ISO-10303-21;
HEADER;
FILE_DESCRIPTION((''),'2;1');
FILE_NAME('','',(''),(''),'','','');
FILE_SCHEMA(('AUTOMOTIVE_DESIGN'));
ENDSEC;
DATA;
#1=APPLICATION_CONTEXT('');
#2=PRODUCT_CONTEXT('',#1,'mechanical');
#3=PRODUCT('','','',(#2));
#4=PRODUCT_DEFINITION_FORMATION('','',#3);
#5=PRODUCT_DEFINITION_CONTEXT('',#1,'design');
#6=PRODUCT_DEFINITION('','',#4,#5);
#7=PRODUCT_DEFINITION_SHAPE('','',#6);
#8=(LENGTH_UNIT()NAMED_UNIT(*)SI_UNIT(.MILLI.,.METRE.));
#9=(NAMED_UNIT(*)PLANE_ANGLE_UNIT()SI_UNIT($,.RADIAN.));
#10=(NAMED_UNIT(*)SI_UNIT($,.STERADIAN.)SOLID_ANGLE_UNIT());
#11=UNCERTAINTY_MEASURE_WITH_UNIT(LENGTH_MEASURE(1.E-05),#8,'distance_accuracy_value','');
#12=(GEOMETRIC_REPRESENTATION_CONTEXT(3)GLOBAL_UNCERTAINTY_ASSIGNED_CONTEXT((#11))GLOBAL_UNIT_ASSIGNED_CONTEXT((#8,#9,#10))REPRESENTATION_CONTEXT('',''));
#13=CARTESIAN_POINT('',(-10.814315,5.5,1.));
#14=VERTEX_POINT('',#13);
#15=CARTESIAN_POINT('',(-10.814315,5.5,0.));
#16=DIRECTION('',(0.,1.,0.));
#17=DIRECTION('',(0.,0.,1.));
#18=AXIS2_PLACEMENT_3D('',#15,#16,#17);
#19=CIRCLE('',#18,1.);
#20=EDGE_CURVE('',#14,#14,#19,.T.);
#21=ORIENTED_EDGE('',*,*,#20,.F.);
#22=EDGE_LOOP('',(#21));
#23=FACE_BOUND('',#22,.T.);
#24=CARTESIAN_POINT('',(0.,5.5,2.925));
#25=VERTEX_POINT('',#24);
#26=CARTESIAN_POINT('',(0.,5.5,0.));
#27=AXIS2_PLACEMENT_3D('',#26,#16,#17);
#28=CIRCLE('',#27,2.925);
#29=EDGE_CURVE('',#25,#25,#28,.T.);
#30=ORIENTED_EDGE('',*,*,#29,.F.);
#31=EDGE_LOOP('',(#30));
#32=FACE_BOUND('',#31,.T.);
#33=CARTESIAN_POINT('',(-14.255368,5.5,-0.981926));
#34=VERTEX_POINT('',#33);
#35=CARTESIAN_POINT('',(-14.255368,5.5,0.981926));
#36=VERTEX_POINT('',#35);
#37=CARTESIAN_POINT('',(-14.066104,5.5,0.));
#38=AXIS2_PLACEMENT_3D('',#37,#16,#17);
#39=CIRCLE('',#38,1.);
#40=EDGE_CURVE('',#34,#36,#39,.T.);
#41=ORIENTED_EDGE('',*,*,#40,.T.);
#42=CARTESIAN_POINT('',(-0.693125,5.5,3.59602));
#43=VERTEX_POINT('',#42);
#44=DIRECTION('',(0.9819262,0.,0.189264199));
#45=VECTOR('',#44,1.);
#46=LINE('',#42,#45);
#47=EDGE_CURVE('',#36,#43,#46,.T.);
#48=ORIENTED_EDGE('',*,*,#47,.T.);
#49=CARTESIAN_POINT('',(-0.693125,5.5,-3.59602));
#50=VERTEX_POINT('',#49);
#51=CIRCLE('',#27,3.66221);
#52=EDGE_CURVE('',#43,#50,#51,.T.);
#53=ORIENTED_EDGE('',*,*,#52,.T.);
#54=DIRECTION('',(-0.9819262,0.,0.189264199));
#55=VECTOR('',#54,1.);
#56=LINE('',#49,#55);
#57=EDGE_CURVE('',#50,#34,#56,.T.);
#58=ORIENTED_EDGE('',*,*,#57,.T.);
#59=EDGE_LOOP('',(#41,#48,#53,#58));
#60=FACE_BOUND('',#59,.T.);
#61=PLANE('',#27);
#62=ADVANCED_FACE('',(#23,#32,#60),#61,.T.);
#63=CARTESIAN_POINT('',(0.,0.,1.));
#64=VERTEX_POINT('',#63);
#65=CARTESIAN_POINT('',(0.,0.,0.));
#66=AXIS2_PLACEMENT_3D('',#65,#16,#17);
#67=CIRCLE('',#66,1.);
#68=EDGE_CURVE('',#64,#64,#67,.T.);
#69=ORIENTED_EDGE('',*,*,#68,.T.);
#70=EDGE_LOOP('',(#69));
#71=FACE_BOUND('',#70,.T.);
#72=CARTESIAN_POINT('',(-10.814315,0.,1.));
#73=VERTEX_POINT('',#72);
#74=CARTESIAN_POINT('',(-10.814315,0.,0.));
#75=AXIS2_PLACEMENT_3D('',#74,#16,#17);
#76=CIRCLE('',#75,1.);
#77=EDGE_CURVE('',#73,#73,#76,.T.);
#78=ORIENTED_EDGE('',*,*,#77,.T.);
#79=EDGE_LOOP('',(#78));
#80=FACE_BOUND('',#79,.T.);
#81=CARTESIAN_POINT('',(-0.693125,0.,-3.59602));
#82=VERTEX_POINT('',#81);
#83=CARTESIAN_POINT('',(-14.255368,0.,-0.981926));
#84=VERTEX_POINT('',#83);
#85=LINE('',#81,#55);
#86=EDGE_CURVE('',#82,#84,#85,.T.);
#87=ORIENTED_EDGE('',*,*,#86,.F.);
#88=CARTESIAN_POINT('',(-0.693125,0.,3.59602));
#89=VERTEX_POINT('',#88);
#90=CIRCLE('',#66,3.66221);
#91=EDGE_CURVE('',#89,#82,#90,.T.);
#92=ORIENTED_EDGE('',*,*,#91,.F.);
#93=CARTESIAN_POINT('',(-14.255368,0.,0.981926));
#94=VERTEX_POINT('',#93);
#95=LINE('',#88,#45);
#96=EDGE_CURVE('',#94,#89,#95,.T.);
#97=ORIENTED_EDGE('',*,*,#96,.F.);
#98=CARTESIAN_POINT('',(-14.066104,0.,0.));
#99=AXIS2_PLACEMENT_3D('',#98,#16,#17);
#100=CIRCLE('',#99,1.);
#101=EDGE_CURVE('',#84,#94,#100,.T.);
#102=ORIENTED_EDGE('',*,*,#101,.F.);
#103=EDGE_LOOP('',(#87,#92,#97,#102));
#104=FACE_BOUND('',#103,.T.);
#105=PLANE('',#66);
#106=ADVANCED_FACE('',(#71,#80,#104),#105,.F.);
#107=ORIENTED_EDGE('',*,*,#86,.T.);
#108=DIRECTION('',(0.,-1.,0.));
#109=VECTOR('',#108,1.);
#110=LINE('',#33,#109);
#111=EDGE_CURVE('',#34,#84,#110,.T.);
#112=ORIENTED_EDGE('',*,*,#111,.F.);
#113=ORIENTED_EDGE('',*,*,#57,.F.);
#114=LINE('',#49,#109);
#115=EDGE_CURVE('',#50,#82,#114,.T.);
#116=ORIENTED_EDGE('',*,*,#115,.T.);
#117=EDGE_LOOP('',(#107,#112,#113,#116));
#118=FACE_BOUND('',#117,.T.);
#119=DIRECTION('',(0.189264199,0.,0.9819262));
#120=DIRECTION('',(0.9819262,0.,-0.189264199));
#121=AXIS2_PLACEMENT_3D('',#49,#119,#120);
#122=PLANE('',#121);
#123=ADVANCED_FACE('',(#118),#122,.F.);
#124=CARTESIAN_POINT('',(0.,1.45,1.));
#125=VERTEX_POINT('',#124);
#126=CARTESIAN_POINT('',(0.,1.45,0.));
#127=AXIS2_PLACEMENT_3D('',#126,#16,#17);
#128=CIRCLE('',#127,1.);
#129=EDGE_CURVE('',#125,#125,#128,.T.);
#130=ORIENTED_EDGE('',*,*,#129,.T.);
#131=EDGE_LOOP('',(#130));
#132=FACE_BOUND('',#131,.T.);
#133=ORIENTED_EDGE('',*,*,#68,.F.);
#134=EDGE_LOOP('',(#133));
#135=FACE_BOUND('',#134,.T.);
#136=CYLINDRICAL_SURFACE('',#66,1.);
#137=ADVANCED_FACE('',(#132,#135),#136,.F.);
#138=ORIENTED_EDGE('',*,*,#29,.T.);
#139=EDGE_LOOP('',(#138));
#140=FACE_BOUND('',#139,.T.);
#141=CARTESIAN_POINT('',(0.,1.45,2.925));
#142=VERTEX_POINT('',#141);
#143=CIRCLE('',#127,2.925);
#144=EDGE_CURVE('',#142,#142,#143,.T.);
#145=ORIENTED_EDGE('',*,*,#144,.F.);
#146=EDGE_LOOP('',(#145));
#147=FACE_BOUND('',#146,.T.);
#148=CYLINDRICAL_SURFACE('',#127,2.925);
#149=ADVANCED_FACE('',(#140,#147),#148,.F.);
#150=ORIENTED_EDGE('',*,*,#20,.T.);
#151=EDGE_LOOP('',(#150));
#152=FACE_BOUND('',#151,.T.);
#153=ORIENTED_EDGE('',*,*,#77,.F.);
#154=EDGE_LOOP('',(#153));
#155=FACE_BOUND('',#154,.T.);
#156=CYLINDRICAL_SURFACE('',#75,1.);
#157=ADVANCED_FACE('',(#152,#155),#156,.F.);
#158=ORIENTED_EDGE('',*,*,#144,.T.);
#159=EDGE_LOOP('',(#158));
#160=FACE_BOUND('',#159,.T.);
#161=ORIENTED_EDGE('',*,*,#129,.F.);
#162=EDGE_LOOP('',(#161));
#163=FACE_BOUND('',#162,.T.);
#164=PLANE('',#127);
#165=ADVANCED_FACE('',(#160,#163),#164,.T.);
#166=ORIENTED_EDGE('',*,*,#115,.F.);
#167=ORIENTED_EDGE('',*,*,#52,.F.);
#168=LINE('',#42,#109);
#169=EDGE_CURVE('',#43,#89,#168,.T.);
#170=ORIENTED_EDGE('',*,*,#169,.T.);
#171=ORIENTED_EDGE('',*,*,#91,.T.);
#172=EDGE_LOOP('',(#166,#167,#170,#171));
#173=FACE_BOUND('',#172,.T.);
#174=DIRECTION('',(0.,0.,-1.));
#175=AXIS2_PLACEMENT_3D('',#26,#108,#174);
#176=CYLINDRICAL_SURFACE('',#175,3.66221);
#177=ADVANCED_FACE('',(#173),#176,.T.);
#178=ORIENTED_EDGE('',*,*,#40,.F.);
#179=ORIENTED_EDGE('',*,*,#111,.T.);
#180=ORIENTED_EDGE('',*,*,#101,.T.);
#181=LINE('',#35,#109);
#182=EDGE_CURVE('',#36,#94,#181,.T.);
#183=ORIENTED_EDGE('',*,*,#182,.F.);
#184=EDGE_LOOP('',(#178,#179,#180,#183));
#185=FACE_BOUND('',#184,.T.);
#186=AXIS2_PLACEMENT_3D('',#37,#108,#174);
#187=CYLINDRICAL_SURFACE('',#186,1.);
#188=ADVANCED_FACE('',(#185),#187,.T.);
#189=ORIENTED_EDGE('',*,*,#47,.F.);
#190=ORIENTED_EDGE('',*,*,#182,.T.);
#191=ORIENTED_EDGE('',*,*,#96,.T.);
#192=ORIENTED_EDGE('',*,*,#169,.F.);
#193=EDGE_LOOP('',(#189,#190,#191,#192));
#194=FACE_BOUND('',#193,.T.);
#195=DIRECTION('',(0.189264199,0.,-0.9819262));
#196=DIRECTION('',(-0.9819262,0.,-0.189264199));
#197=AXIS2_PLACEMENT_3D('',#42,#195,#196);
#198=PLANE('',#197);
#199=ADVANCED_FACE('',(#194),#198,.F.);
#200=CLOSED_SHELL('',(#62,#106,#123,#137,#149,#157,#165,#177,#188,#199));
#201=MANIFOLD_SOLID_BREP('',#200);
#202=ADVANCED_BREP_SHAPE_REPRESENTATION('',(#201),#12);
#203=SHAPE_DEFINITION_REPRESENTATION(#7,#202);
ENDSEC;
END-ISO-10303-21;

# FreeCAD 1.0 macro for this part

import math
import FreeCAD as App
import Part
import Sketcher

V = App.Vector

doc = App.newDocument("Part")
body = doc.addObject("PartDesign::Body", "Body")

# Sketch on XZ plane
sketch1 = doc.addObject("Sketcher::SketchObject", "Sketch")
body.addObject(sketch1)
sketch1.AttachmentSupport = (doc.XZ_Plane, [""])
sketch1.MapMode = "FlatFace"
sketch1.addGeometry([
    Part.LineSegment(V(-14.255368, 0.981926, 0), V(-0.693125, 3.59602, 0)),  # 0
    Part.ArcOfCircle(Part.Circle(V(0, 0, 0), V(0, 0, 1), 3.66221), math.radians(0), math.radians(100.909847)),  # 1
    Part.ArcOfCircle(Part.Circle(V(0, 0, 0), V(0, 0, 1), 3.66221), math.radians(-100.909847), math.radians(0)),  # 2
    Part.LineSegment(V(-0.693125, -3.59602, 0), V(-14.255368, -0.981926, 0)),  # 3
    Part.ArcOfCircle(Part.Circle(V(-14.066104, 0, 0), V(0, 0, 1), 1), math.radians(100.909847), math.radians(259.090153)),  # 4
], False)
sketch1.addConstraint([
    Sketcher.Constraint("Tangent", 0, 2, 1, 2),
    Sketcher.Constraint("Tangent", 1, 1, 2, 2),
    Sketcher.Constraint("Tangent", 2, 1, 3, 1),
    Sketcher.Constraint("Tangent", 3, 2, 4, 2),
    Sketcher.Constraint("Tangent", 4, 1, 0, 1),
    Sketcher.Constraint("Coincident", 1, 3, -1, 1),
    Sketcher.Constraint("Equal", 1, 2),
    Sketcher.Constraint("PointOnObject", 4, 3, -1),
    Sketcher.Constraint("PointOnObject", 1, 1, -1),
    Sketcher.Constraint("Radius", 4, 1.0),
    Sketcher.Constraint("Radius", 1, 3.66221),
    Sketcher.Constraint("DistanceY", -1, 1, 0, 2, 3.59602),
])
pad1 = doc.addObject("PartDesign::Pad", "Pad")
body.addObject(pad1)
pad1.Profile = sketch1
pad1.Length = 5.5
pad1.Reversed = True

# Sketch on XZ plane
sketch2 = doc.addObject("Sketcher::SketchObject", "Sketch001")
body.addObject(sketch2)
sketch2.AttachmentSupport = (doc.XZ_Plane, [""])
sketch2.MapMode = "FlatFace"
sketch2.AttachmentOffset = App.Placement(V(0, 0, -5.5), App.Rotation())
sketch2.addGeometry(Part.Circle(V(0, 0, 0), V(0, 0, 1), 2.925), False)
sketch2.addConstraint([
    Sketcher.Constraint("Coincident", 0, 3, -1, 1),
    Sketcher.Constraint("Diameter", 0, 5.85),
])
pocket1 = doc.addObject("PartDesign::Pocket", "Pocket")
body.addObject(pocket1)
pocket1.Profile = sketch2
pocket1.Length = 4.05
pocket1.Reversed = True

# Sketch on XZ plane
sketch3 = doc.addObject("Sketcher::SketchObject", "Sketch002")
body.addObject(sketch3)
sketch3.AttachmentSupport = (doc.XZ_Plane, [""])
sketch3.MapMode = "FlatFace"
sketch3.AttachmentOffset = App.Placement(V(0, 0, -5.5), App.Rotation())
sketch3.addGeometry(Part.Circle(V(-10.814315, 0, 0), V(0, 0, 1), 1), False)
sketch3.addConstraint([
    Sketcher.Constraint("PointOnObject", 0, 3, -1),
    Sketcher.Constraint("Diameter", 0, 2.0),
    Sketcher.Constraint("DistanceX", 0, 3, -1, 1, 10.814315),
])
pocket2 = doc.addObject("PartDesign::Pocket", "Pocket001")
body.addObject(pocket2)
pocket2.Profile = sketch3
pocket2.Type = "ThroughAll"
pocket2.Reversed = True

# Sketch on XZ plane
sketch4 = doc.addObject("Sketcher::SketchObject", "Sketch003")
body.addObject(sketch4)
sketch4.AttachmentSupport = (doc.XZ_Plane, [""])
sketch4.MapMode = "FlatFace"
sketch4.AttachmentOffset = App.Placement(V(0, 0, -1.45), App.Rotation())
sketch4.addGeometry(Part.Circle(V(0, 0, 0), V(0, 0, 1), 1), False)
sketch4.addConstraint([
    Sketcher.Constraint("Coincident", 0, 3, -1, 1),
    Sketcher.Constraint("Diameter", 0, 2.0),
])
pocket3 = doc.addObject("PartDesign::Pocket", "Pocket002")
body.addObject(pocket3)
pocket3.Profile = sketch4
pocket3.Type = "ThroughAll"
pocket3.Reversed = True

doc.recompute()
